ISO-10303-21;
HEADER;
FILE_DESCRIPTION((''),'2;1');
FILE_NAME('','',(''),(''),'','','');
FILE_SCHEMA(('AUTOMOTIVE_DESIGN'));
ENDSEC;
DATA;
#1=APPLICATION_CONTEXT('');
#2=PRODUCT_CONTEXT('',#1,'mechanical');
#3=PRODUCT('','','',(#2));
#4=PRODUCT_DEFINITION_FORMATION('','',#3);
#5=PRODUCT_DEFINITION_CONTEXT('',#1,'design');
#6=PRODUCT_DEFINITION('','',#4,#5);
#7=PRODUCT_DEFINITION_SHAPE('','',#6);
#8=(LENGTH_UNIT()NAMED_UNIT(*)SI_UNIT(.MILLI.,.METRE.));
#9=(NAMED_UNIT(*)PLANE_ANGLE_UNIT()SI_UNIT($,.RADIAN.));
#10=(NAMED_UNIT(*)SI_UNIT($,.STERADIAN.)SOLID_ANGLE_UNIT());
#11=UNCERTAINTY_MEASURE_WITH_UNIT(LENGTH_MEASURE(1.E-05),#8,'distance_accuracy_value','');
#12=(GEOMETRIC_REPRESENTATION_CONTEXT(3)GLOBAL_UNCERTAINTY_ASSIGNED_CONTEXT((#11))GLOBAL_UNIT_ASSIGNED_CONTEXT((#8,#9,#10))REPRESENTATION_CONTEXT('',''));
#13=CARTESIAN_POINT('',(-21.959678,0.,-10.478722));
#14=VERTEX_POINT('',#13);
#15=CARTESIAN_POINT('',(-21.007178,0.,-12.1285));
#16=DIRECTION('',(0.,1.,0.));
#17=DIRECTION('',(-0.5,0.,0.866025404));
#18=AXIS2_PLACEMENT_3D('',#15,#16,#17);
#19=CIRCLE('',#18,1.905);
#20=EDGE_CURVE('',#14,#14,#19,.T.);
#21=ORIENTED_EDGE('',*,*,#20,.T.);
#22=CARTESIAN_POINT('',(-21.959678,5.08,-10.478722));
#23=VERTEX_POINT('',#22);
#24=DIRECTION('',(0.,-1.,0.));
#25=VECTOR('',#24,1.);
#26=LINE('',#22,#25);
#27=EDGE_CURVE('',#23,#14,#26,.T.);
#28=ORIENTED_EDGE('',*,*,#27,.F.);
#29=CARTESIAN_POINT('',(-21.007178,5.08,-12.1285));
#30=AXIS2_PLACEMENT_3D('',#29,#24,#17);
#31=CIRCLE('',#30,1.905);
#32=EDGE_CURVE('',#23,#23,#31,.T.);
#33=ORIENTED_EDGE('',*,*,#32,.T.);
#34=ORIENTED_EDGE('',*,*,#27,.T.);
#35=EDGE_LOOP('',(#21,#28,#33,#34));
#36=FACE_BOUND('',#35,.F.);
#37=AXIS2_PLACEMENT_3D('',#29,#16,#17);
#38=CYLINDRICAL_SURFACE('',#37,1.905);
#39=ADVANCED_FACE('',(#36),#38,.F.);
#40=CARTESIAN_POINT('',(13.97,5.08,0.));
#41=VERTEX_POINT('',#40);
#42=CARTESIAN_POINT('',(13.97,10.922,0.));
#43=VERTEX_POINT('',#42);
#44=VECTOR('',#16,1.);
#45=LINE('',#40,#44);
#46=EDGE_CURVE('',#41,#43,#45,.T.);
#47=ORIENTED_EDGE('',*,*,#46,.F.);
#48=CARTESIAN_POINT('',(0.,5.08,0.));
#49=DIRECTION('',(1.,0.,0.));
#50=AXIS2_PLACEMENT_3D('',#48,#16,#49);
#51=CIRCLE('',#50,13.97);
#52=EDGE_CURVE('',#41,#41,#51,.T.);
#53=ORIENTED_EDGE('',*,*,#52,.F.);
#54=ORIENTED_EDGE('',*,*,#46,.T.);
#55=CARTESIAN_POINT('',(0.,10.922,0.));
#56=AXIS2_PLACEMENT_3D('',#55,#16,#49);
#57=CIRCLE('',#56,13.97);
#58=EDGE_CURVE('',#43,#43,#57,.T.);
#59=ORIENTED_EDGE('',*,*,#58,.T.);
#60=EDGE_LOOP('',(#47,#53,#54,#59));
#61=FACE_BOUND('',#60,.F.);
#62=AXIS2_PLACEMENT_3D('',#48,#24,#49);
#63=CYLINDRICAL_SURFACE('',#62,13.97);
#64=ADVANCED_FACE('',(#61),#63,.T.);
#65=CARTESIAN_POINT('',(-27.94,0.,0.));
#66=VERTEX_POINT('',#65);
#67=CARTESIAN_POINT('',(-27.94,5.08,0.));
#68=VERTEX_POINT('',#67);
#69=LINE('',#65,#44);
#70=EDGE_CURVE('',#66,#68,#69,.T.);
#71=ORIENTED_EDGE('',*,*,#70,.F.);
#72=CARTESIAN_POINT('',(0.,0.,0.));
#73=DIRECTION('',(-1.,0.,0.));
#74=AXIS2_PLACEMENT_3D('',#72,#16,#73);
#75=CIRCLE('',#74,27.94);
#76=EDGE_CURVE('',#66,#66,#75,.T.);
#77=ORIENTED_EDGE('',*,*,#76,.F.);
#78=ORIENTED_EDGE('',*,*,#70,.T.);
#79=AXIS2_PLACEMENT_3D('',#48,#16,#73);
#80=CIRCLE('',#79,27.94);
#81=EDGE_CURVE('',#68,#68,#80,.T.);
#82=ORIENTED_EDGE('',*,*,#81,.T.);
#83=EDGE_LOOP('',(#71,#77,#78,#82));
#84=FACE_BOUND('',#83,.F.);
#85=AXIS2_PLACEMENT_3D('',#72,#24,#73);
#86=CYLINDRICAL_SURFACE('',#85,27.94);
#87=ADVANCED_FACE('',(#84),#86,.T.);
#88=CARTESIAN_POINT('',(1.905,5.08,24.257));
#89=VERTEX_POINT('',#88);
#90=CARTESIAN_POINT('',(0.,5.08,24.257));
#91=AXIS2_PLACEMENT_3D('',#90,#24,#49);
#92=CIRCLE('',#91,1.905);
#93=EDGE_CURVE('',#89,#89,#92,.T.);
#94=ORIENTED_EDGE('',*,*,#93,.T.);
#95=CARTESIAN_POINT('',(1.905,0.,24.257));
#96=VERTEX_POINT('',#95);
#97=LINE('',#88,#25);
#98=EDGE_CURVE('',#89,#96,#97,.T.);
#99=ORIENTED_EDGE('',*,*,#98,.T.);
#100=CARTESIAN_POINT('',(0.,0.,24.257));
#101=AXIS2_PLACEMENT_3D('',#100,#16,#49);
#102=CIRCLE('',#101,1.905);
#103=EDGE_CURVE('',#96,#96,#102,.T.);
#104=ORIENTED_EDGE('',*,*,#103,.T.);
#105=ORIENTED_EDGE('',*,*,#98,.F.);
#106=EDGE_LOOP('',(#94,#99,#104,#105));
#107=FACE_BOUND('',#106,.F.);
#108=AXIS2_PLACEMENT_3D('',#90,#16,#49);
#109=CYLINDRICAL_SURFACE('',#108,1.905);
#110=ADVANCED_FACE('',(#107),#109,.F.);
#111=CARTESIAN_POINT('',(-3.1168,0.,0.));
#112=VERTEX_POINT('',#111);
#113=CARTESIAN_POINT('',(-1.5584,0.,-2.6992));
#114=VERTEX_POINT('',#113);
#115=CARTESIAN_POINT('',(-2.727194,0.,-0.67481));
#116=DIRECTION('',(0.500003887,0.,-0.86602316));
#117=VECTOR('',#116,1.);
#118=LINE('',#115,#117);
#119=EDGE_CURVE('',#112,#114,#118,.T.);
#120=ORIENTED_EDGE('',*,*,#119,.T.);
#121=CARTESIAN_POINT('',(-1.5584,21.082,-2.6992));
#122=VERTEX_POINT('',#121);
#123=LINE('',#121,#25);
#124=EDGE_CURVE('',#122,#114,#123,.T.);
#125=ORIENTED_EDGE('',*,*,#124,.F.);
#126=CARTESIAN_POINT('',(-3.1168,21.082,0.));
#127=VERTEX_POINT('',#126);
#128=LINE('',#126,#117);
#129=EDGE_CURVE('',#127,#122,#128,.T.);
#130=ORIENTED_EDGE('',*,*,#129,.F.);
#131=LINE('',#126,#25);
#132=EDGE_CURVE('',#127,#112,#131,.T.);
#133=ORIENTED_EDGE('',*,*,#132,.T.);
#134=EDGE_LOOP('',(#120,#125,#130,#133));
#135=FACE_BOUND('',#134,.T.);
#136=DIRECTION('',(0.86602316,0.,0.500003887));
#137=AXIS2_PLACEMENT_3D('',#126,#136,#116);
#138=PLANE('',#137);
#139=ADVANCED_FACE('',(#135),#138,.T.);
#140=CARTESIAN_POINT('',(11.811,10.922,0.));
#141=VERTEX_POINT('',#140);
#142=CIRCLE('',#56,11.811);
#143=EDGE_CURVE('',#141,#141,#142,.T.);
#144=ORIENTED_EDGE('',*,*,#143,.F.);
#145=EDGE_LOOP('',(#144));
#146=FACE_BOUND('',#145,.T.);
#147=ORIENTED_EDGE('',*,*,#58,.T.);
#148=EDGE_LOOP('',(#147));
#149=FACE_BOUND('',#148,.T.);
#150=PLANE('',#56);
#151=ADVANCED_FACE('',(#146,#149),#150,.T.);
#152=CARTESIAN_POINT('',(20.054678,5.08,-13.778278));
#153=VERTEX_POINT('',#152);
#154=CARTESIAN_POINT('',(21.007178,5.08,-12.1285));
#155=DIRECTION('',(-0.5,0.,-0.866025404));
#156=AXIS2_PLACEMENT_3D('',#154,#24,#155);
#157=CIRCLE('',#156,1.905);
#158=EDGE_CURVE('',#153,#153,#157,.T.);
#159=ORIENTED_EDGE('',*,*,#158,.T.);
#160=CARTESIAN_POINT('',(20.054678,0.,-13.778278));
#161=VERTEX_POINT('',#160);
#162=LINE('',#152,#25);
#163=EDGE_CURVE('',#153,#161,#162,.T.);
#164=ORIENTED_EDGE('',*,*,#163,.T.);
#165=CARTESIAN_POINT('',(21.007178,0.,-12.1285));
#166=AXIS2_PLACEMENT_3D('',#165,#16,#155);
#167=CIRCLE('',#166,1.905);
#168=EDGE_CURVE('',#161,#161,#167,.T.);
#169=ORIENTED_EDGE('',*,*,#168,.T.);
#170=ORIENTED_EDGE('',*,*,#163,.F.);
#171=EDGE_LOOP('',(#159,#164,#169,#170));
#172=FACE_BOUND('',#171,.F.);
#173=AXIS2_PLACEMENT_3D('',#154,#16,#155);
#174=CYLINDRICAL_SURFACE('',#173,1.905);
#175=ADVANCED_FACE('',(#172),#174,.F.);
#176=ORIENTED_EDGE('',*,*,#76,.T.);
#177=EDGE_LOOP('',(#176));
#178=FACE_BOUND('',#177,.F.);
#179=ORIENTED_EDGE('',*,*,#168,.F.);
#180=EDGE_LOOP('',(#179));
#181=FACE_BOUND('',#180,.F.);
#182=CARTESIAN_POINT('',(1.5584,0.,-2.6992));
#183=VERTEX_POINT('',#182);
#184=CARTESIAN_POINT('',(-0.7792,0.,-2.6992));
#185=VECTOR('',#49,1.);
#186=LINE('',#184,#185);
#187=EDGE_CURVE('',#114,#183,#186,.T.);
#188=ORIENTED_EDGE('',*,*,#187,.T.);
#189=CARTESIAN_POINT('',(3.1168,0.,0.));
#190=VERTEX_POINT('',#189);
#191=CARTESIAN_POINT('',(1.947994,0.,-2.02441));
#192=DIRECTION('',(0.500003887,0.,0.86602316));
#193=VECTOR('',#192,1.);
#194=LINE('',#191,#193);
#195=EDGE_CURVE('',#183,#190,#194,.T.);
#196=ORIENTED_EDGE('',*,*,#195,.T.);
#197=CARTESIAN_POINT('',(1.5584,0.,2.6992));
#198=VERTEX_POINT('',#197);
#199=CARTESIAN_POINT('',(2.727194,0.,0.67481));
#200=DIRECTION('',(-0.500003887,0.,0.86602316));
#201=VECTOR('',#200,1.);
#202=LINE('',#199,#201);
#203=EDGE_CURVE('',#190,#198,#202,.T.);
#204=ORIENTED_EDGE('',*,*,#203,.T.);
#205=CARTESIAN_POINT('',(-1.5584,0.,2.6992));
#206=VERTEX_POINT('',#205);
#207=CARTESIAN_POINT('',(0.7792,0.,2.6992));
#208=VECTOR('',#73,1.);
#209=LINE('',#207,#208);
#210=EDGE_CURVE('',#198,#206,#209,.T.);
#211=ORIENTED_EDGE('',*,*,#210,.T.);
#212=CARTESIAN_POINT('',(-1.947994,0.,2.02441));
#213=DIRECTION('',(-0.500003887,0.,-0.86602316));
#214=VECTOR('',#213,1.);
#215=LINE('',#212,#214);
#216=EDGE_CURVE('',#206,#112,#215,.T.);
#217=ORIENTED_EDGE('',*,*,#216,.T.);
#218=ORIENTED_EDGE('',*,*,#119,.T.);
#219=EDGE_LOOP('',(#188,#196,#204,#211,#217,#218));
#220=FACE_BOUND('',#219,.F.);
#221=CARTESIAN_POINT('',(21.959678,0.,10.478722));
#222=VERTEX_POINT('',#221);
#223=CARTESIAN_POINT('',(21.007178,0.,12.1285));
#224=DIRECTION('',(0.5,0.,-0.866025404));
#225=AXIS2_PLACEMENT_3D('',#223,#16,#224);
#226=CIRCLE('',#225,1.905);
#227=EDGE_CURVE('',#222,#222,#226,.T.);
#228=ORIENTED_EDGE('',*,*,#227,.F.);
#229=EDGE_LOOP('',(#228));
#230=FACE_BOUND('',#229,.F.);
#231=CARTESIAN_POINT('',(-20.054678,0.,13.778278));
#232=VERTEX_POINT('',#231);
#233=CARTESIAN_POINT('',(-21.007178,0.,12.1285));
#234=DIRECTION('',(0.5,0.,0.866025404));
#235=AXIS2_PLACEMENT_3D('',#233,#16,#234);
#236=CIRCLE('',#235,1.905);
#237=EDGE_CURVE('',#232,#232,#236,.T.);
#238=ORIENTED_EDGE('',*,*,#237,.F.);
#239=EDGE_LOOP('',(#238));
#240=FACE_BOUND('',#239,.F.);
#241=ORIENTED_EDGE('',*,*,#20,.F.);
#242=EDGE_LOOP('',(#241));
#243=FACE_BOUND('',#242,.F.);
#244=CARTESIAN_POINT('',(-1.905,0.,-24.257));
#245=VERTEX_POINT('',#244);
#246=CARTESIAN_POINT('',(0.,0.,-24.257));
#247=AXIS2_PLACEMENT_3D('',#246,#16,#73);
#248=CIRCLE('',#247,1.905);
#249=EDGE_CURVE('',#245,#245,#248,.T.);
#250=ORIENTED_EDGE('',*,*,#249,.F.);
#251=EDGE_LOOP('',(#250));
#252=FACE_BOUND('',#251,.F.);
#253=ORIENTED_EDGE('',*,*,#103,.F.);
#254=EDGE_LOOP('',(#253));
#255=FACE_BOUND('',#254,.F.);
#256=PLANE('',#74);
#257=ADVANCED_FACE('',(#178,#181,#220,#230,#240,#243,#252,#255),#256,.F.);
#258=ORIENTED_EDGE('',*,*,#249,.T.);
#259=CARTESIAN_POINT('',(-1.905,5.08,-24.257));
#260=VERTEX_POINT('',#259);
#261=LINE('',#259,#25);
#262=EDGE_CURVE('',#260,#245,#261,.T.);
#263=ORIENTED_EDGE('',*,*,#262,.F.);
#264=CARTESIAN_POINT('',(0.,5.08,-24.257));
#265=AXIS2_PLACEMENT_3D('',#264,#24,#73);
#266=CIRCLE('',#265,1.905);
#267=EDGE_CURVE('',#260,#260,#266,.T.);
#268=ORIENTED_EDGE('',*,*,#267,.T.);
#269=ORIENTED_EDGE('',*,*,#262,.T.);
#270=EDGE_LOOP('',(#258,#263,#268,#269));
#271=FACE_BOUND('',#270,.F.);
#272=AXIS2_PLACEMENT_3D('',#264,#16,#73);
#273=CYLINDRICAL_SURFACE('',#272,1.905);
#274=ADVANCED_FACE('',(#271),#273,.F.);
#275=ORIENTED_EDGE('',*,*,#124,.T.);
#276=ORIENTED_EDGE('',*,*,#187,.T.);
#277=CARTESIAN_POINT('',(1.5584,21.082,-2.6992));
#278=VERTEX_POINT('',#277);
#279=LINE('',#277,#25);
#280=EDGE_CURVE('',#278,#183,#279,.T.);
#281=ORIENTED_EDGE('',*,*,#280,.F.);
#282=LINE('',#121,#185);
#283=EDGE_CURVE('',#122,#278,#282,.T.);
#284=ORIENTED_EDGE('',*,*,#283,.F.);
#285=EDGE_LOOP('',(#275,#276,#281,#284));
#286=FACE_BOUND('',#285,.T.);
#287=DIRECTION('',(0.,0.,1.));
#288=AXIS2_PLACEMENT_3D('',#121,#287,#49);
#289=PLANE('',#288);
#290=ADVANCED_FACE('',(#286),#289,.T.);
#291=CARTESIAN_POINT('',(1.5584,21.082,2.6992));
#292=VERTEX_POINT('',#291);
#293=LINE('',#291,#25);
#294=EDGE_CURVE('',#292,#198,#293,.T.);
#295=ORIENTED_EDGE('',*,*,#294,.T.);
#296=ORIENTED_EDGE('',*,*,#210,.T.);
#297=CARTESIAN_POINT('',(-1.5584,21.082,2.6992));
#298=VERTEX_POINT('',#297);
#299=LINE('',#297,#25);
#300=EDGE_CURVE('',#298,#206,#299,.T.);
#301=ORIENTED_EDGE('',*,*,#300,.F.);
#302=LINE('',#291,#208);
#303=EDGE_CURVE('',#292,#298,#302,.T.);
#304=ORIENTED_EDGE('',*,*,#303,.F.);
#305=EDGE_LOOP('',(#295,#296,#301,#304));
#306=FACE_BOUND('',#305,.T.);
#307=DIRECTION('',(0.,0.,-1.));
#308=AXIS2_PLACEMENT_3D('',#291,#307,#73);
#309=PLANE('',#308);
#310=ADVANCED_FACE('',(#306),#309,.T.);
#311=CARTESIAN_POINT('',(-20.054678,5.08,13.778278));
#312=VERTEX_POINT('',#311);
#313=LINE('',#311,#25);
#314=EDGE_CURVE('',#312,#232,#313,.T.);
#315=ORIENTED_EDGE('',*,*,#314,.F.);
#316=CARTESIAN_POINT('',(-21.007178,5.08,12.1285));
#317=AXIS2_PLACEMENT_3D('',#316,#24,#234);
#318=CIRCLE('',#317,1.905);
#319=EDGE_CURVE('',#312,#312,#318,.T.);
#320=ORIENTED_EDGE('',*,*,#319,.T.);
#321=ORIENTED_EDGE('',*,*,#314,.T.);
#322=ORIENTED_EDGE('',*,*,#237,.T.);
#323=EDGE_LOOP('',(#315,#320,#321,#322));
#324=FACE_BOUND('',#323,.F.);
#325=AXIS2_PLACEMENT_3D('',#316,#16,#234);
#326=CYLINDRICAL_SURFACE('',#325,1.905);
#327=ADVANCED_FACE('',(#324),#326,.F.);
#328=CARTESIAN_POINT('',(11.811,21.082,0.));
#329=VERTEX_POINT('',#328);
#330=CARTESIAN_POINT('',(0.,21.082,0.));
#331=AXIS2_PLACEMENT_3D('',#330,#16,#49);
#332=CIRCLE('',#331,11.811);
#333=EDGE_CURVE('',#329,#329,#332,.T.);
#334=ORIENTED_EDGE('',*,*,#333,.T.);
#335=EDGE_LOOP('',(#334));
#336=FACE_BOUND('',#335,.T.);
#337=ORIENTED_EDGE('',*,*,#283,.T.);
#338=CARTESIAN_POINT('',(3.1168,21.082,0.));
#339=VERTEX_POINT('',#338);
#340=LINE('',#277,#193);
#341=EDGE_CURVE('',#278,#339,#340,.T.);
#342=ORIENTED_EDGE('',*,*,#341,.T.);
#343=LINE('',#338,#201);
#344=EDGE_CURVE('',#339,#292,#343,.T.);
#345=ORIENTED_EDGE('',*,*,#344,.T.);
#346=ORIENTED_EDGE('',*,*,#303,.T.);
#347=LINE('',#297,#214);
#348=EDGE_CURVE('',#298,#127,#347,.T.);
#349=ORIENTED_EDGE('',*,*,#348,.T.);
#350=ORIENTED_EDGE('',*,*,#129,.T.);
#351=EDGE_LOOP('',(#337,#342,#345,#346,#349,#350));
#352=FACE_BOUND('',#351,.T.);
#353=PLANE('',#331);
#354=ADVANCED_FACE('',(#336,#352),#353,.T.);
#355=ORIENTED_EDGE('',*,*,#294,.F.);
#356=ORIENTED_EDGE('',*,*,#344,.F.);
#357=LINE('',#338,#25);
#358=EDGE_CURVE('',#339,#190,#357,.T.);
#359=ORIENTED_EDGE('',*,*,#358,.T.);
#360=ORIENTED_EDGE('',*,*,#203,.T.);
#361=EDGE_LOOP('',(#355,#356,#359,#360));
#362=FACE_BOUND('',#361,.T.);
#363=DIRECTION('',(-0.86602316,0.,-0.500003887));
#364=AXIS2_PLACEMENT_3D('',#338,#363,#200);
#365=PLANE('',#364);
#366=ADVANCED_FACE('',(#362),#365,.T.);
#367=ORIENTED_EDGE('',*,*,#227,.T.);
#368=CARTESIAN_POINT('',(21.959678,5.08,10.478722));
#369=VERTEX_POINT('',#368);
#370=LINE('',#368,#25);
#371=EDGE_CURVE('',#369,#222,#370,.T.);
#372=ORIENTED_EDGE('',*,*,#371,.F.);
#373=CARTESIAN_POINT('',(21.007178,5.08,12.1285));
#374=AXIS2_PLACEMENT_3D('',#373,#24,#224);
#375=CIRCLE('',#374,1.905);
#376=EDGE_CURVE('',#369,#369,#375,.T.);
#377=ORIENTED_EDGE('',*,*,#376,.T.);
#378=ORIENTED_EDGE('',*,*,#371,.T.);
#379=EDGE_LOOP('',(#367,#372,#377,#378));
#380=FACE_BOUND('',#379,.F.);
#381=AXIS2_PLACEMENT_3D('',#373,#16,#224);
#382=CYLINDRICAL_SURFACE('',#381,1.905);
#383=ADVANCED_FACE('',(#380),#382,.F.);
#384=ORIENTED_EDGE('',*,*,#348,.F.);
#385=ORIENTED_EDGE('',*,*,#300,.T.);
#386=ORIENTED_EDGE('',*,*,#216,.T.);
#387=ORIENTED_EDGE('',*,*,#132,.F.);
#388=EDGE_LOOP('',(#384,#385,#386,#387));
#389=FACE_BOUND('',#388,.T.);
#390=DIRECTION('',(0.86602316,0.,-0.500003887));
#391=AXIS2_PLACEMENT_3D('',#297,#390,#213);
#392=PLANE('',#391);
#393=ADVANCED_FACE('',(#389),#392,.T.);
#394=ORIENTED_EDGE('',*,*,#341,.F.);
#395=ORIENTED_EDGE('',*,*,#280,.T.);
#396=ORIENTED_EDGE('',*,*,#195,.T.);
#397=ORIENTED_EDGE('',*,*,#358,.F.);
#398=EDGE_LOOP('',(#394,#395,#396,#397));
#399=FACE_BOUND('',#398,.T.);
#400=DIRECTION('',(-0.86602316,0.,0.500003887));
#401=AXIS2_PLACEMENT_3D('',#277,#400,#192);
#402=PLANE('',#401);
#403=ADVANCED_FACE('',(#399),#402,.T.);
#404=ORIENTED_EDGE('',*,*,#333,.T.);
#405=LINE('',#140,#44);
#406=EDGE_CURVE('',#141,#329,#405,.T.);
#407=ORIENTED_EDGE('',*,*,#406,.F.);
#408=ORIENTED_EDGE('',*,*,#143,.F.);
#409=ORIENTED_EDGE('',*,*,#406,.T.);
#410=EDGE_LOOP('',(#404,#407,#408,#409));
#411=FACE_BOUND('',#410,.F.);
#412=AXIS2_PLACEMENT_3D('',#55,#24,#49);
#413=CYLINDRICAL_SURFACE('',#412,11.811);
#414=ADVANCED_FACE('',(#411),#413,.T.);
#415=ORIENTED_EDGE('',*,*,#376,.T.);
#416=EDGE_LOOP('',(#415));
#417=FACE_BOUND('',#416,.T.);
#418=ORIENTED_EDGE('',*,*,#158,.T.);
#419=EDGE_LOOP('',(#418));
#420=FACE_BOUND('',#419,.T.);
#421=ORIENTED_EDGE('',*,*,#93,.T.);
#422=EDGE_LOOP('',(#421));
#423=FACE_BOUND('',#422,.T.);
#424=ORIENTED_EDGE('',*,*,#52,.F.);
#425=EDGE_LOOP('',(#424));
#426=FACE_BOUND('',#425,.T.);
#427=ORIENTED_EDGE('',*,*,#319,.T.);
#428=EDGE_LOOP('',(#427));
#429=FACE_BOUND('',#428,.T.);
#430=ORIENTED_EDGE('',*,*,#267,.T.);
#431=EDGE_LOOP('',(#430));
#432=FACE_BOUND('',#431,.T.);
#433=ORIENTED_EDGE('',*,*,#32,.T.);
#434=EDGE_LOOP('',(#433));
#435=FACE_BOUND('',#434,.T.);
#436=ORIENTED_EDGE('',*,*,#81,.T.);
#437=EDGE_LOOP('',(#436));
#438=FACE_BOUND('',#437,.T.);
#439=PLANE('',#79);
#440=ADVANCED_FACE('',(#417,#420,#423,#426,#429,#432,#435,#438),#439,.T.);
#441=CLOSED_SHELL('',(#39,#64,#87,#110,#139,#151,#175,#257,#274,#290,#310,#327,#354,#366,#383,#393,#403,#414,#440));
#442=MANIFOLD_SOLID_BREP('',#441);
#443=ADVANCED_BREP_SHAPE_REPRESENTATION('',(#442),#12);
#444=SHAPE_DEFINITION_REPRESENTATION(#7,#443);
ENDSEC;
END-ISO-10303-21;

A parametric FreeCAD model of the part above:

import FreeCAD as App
import Part
import Sketcher
from FreeCAD import Vector
Q = App.Units.Quantity


def add_polygon(sketch, points):
    """Adds a closed chain of lines whose ends are joined by coincident constraints."""
    first, n = sketch.GeometryCount, len(points)
    for a, b in zip(points, points[1:] + points[:1]):
        sketch.addGeometry(Part.LineSegment(App.Vector(*a, 0), App.Vector(*b, 0)), False)
    for i in range(n):
        sketch.addConstraint(Sketcher.Constraint("Coincident", first + i, 2, first + (i + 1) % n, 1))

doc = App.newDocument("Part")
params = doc.addObject("Spreadsheet::Sheet", "Params")
for row, (alias, value) in enumerate([
    ("sketch1_diameter", "2.2 in"),
    ("pad1_length", "0.2 in"),
    ("sketch2_diameter", "1.1 in"),
    ("pad2_length", "0.23 in"),
    ("sketch3_diameter", "0.93 in"),
    ("pad3_length", "0.4 in"),
    ("pocket1_length", "1 in"),
    ("sketch5_diameter", "0.15 in"),
    ("pocket2_length", "1 in"),
], start=1):
    params.set(f"A{row}", alias)
    params.set(f"B{row}", "=" + value)
    params.setAlias(f"B{row}", alias)

body = doc.addObject("PartDesign::Body", "Body")

# Sketch on XZ plane
sketch1 = doc.addObject("Sketcher::SketchObject", "Sketch")
body.addObject(sketch1)
sketch1.AttachmentSupport = (doc.XZ_Plane, [""])
sketch1.MapMode = "FlatFace"
sketch1.addGeometry(Part.Circle(Vector(0, 0, 0), Vector(0, 0, 1), 28), False)
sketch1.addConstraint(Sketcher.Constraint("Coincident", 0, 3, -1, 1))
sketch1.addConstraint(Sketcher.Constraint("Diameter", 0, Q("2.2 in")))
sketch1.setExpression("Constraints[1]", "Params.sketch1_diameter")
pad1 = doc.addObject("PartDesign::Pad", "Pad")
body.addObject(pad1)
pad1.Profile = sketch1
pad1.setExpression("Length", "Params.pad1_length")
pad1.Reversed = True

# Sketch on XZ plane
sketch2 = doc.addObject("Sketcher::SketchObject", "Sketch001")
body.addObject(sketch2)
sketch2.AttachmentSupport = (doc.XZ_Plane, [""])
sketch2.MapMode = "FlatFace"
sketch2.AttachmentOffset = App.Placement(Vector(0, 0, -0.2 * 25.4), App.Rotation())
sketch2.addGeometry(Part.Circle(Vector(0, 0, 0), Vector(0, 0, 1), 14), False)
sketch2.addConstraint(Sketcher.Constraint("Coincident", 0, 3, -1, 1))
sketch2.addConstraint(Sketcher.Constraint("Diameter", 0, Q("1.1 in")))
sketch2.setExpression("Constraints[1]", "Params.sketch2_diameter")
pad2 = doc.addObject("PartDesign::Pad", "Pad001")
body.addObject(pad2)
pad2.Profile = sketch2
pad2.setExpression("Length", "Params.pad2_length")
pad2.Reversed = True

# Sketch on XZ plane
sketch3 = doc.addObject("Sketcher::SketchObject", "Sketch002")
body.addObject(sketch3)
sketch3.AttachmentSupport = (doc.XZ_Plane, [""])
sketch3.MapMode = "FlatFace"
sketch3.AttachmentOffset = App.Placement(Vector(0, 0, -0.43 * 25.4), App.Rotation())
sketch3.addGeometry(Part.Circle(Vector(0, 0, 0), Vector(0, 0, 1), 12), False)
sketch3.addConstraint(Sketcher.Constraint("Coincident", 0, 3, -1, 1))
sketch3.addConstraint(Sketcher.Constraint("Diameter", 0, Q("0.93 in")))
sketch3.setExpression("Constraints[1]", "Params.sketch3_diameter")
pad3 = doc.addObject("PartDesign::Pad", "Pad002")
body.addObject(pad3)
pad3.Profile = sketch3
pad3.setExpression("Length", "Params.pad3_length")
pad3.Reversed = True

# Sketch on XZ plane
sketch4 = doc.addObject("Sketcher::SketchObject", "Sketch003")
body.addObject(sketch4)
sketch4.AttachmentSupport = (doc.XZ_Plane, [""])
sketch4.MapMode = "FlatFace"
sketch4.AttachmentOffset = App.Placement(Vector(0, 0, -0.83 * 25.4), App.Rotation())
add_polygon(sketch4, [(-1.6, -2.7), (-3.1, 0), (-1.6, 2.7), (1.6, 2.7), (3.1, 0), (1.6, -2.7)])  # lines 0-5
sketch4.addConstraint(Sketcher.Constraint("Horizontal", 2))
sketch4.addConstraint(Sketcher.Constraint("Horizontal", 5))
sketch4.addConstraint(Sketcher.Constraint("Symmetric", 0, 2, 3, 2, -1, 1))
sketch4.addConstraint(Sketcher.Constraint("Symmetric", 1, 2, 4, 2, -1, 1))
sketch4.addConstraint(Sketcher.Constraint("PointOnObject", 0, 2, -1))
sketch4.addConstraint(Sketcher.Constraint("Parallel", 0, 3))
sketch4.addConstraint(Sketcher.Constraint("Vertical", 2, 2, 4, 2))
sketch4.addConstraint(Sketcher.Constraint("Angle", 0, Q("120.0003 deg")))
sketch4.addConstraint(Sketcher.Constraint("DistanceX", 2, 1, 2, 2, Q("0.1227 in")))
sketch4.addConstraint(Sketcher.Constraint("Distance", 0, Q("0.1227 in")))
pocket1 = doc.addObject("PartDesign::Pocket", "Pocket")
body.addObject(pocket1)
pocket1.Profile = sketch4
pocket1.setExpression("Length", "Params.pocket1_length")
pocket1.Reversed = True

# Sketch on XZ plane
sketch5 = doc.addObject("Sketcher::SketchObject", "Sketch004")
body.addObject(sketch5)
sketch5.AttachmentSupport = (doc.XZ_Plane, [""])
sketch5.MapMode = "FlatFace"
sketch5.AttachmentOffset = App.Placement(Vector(0, 0, -0.2 * 25.4), App.Rotation())
sketch5.addGeometry(Part.Circle(Vector(0, 24.3, 0), Vector(0, 0, 1), 1.9), False)
sketch5.addConstraint(Sketcher.Constraint("PointOnObject", 0, 3, -2))
sketch5.addConstraint(Sketcher.Constraint("Diameter", 0, Q("0.15 in")))
sketch5.addConstraint(Sketcher.Constraint("DistanceY", -1, 1, 0, 3, Q("0.955 in")))
sketch5.setExpression("Constraints[1]", "Params.sketch5_diameter")
pocket2 = doc.addObject("PartDesign::Pocket", "Pocket001")
body.addObject(pocket2)
pocket2.Profile = sketch5
pocket2.setExpression("Length", "Params.pocket2_length")
pocket2.Reversed = True
doc.recompute()

polarpattern = doc.addObject("PartDesign::PolarPattern", "PolarPattern")
body.addObject(polarpattern)
polarpattern.Originals = [pocket2]
polarpattern.Axis = (doc.Y_Axis, [""])
polarpattern.Angle = 360
polarpattern.Occurrences = 6
body.Tip = polarpattern

doc.recompute()
